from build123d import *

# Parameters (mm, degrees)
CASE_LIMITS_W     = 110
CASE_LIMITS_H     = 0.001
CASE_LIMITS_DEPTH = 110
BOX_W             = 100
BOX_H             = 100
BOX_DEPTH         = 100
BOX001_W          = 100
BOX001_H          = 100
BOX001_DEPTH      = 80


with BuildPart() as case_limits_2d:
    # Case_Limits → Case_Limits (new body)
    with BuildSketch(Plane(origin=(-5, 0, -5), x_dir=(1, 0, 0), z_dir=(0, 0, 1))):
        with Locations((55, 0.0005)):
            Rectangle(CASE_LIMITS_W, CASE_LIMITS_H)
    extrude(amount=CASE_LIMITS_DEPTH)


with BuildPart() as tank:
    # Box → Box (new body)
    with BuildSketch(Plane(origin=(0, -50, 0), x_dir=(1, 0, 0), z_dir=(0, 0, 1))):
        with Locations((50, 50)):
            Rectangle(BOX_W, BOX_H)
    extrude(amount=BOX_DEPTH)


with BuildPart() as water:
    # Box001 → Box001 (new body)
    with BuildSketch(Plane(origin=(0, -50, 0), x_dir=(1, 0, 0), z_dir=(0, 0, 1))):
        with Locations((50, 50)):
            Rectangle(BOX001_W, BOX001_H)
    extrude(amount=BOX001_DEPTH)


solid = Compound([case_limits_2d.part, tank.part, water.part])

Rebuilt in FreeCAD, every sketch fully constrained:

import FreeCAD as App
import Part
import Sketcher

V = App.Vector
Q = App.Units.Quantity


def add_polygon(sketch, points):
    """Adds a closed chain of lines whose ends are joined by coincident constraints."""
    first, n = sketch.GeometryCount, len(points)
    for a, b in zip(points, points[1:] + points[:1]):
        sketch.addGeometry(Part.LineSegment(App.Vector(*a, 0), App.Vector(*b, 0)), False)
    for i in range(n):
        sketch.addConstraint(Sketcher.Constraint("Coincident", first + i, 2, first + (i + 1) % n, 1))

doc = App.newDocument("Part")
body = doc.addObject("PartDesign::Body", "Body")

# Sketch on XY plane
sketch1 = doc.addObject("Sketcher::SketchObject", "Sketch")
body.addObject(sketch1)
sketch1.AttachmentSupport = (doc.XY_Plane, [""])
sketch1.MapMode = "FlatFace"
sketch1.AttachmentOffset = App.Placement(V(0, 0, -5), App.Rotation())
add_polygon(sketch1, [(-5, 0.001), (-5, 0), (105, 0), (105, 0.001)])  # lines 0-3
sketch1.addConstraint(Sketcher.Constraint("Vertical", 0))
sketch1.addConstraint(Sketcher.Constraint("Horizontal", 1))
sketch1.addConstraint(Sketcher.Constraint("Vertical", 2))
sketch1.addConstraint(Sketcher.Constraint("Horizontal", 3))
sketch1.addConstraint(Sketcher.Constraint("PointOnObject", 0, 2, -1))
sketch1.addConstraint(Sketcher.Constraint("DistanceX", 1, 1, 1, 2, Q("110 mm")))
sketch1.addConstraint(Sketcher.Constraint("DistanceX", 0, 2, -1, 1, Q("5 mm")))
sketch1.addConstraint(Sketcher.Constraint("DistanceY", 0, 2, 0, 1, Q("0.001 mm")))
pad1 = doc.addObject("PartDesign::Pad", "Pad")
body.addObject(pad1)
pad1.Profile = sketch1
pad1.Length = 110
body2 = doc.addObject("PartDesign::Body", "Body001")

# Sketch on XY plane
sketch2 = doc.addObject("Sketcher::SketchObject", "Sketch001")
body2.addObject(sketch2)
sketch2.AttachmentSupport = (doc.getObject("XY_Plane001"), [""])
sketch2.MapMode = "FlatFace"
add_polygon(sketch2, [(0, 50), (0, -50), (100, -50), (100, 50)])  # lines 0-3
sketch2.addConstraint(Sketcher.Constraint("Vertical", 0))
sketch2.addConstraint(Sketcher.Constraint("Horizontal", 1))
sketch2.addConstraint(Sketcher.Constraint("Vertical", 2))
sketch2.addConstraint(Sketcher.Constraint("Horizontal", 3))
sketch2.addConstraint(Sketcher.Constraint("Symmetric", 0, 2, 3, 2, -1, 1))
sketch2.addConstraint(Sketcher.Constraint("Equal", 3, 0))
sketch2.addConstraint(Sketcher.Constraint("DistanceX", 1, 1, 1, 2, Q("100 mm")))
pad2 = doc.addObject("PartDesign::Pad", "Pad001")
body2.addObject(pad2)
pad2.Profile = sketch2
pad2.Length = 100
body3 = doc.addObject("PartDesign::Body", "Body002")

# Sketch on XY plane
sketch3 = doc.addObject("Sketcher::SketchObject", "Sketch002")
body3.addObject(sketch3)
sketch3.AttachmentSupport = (doc.getObject("XY_Plane002"), [""])
sketch3.MapMode = "FlatFace"
add_polygon(sketch3, [(0, 50), (0, -50), (100, -50), (100, 50)])  # lines 0-3
sketch3.addConstraint(Sketcher.Constraint("Vertical", 0))
sketch3.addConstraint(Sketcher.Constraint("Horizontal", 1))
sketch3.addConstraint(Sketcher.Constraint("Vertical", 2))
sketch3.addConstraint(Sketcher.Constraint("Horizontal", 3))
sketch3.addConstraint(Sketcher.Constraint("Symmetric", 0, 2, 3, 2, -1, 1))
sketch3.addConstraint(Sketcher.Constraint("Equal", 3, 0))
sketch3.addConstraint(Sketcher.Constraint("DistanceX", 1, 1, 1, 2, Q("100 mm")))
pad3 = doc.addObject("PartDesign::Pad", "Pad002")
body3.addObject(pad3)
pad3.Profile = sketch3
pad3.Length = 80

doc.recompute()
